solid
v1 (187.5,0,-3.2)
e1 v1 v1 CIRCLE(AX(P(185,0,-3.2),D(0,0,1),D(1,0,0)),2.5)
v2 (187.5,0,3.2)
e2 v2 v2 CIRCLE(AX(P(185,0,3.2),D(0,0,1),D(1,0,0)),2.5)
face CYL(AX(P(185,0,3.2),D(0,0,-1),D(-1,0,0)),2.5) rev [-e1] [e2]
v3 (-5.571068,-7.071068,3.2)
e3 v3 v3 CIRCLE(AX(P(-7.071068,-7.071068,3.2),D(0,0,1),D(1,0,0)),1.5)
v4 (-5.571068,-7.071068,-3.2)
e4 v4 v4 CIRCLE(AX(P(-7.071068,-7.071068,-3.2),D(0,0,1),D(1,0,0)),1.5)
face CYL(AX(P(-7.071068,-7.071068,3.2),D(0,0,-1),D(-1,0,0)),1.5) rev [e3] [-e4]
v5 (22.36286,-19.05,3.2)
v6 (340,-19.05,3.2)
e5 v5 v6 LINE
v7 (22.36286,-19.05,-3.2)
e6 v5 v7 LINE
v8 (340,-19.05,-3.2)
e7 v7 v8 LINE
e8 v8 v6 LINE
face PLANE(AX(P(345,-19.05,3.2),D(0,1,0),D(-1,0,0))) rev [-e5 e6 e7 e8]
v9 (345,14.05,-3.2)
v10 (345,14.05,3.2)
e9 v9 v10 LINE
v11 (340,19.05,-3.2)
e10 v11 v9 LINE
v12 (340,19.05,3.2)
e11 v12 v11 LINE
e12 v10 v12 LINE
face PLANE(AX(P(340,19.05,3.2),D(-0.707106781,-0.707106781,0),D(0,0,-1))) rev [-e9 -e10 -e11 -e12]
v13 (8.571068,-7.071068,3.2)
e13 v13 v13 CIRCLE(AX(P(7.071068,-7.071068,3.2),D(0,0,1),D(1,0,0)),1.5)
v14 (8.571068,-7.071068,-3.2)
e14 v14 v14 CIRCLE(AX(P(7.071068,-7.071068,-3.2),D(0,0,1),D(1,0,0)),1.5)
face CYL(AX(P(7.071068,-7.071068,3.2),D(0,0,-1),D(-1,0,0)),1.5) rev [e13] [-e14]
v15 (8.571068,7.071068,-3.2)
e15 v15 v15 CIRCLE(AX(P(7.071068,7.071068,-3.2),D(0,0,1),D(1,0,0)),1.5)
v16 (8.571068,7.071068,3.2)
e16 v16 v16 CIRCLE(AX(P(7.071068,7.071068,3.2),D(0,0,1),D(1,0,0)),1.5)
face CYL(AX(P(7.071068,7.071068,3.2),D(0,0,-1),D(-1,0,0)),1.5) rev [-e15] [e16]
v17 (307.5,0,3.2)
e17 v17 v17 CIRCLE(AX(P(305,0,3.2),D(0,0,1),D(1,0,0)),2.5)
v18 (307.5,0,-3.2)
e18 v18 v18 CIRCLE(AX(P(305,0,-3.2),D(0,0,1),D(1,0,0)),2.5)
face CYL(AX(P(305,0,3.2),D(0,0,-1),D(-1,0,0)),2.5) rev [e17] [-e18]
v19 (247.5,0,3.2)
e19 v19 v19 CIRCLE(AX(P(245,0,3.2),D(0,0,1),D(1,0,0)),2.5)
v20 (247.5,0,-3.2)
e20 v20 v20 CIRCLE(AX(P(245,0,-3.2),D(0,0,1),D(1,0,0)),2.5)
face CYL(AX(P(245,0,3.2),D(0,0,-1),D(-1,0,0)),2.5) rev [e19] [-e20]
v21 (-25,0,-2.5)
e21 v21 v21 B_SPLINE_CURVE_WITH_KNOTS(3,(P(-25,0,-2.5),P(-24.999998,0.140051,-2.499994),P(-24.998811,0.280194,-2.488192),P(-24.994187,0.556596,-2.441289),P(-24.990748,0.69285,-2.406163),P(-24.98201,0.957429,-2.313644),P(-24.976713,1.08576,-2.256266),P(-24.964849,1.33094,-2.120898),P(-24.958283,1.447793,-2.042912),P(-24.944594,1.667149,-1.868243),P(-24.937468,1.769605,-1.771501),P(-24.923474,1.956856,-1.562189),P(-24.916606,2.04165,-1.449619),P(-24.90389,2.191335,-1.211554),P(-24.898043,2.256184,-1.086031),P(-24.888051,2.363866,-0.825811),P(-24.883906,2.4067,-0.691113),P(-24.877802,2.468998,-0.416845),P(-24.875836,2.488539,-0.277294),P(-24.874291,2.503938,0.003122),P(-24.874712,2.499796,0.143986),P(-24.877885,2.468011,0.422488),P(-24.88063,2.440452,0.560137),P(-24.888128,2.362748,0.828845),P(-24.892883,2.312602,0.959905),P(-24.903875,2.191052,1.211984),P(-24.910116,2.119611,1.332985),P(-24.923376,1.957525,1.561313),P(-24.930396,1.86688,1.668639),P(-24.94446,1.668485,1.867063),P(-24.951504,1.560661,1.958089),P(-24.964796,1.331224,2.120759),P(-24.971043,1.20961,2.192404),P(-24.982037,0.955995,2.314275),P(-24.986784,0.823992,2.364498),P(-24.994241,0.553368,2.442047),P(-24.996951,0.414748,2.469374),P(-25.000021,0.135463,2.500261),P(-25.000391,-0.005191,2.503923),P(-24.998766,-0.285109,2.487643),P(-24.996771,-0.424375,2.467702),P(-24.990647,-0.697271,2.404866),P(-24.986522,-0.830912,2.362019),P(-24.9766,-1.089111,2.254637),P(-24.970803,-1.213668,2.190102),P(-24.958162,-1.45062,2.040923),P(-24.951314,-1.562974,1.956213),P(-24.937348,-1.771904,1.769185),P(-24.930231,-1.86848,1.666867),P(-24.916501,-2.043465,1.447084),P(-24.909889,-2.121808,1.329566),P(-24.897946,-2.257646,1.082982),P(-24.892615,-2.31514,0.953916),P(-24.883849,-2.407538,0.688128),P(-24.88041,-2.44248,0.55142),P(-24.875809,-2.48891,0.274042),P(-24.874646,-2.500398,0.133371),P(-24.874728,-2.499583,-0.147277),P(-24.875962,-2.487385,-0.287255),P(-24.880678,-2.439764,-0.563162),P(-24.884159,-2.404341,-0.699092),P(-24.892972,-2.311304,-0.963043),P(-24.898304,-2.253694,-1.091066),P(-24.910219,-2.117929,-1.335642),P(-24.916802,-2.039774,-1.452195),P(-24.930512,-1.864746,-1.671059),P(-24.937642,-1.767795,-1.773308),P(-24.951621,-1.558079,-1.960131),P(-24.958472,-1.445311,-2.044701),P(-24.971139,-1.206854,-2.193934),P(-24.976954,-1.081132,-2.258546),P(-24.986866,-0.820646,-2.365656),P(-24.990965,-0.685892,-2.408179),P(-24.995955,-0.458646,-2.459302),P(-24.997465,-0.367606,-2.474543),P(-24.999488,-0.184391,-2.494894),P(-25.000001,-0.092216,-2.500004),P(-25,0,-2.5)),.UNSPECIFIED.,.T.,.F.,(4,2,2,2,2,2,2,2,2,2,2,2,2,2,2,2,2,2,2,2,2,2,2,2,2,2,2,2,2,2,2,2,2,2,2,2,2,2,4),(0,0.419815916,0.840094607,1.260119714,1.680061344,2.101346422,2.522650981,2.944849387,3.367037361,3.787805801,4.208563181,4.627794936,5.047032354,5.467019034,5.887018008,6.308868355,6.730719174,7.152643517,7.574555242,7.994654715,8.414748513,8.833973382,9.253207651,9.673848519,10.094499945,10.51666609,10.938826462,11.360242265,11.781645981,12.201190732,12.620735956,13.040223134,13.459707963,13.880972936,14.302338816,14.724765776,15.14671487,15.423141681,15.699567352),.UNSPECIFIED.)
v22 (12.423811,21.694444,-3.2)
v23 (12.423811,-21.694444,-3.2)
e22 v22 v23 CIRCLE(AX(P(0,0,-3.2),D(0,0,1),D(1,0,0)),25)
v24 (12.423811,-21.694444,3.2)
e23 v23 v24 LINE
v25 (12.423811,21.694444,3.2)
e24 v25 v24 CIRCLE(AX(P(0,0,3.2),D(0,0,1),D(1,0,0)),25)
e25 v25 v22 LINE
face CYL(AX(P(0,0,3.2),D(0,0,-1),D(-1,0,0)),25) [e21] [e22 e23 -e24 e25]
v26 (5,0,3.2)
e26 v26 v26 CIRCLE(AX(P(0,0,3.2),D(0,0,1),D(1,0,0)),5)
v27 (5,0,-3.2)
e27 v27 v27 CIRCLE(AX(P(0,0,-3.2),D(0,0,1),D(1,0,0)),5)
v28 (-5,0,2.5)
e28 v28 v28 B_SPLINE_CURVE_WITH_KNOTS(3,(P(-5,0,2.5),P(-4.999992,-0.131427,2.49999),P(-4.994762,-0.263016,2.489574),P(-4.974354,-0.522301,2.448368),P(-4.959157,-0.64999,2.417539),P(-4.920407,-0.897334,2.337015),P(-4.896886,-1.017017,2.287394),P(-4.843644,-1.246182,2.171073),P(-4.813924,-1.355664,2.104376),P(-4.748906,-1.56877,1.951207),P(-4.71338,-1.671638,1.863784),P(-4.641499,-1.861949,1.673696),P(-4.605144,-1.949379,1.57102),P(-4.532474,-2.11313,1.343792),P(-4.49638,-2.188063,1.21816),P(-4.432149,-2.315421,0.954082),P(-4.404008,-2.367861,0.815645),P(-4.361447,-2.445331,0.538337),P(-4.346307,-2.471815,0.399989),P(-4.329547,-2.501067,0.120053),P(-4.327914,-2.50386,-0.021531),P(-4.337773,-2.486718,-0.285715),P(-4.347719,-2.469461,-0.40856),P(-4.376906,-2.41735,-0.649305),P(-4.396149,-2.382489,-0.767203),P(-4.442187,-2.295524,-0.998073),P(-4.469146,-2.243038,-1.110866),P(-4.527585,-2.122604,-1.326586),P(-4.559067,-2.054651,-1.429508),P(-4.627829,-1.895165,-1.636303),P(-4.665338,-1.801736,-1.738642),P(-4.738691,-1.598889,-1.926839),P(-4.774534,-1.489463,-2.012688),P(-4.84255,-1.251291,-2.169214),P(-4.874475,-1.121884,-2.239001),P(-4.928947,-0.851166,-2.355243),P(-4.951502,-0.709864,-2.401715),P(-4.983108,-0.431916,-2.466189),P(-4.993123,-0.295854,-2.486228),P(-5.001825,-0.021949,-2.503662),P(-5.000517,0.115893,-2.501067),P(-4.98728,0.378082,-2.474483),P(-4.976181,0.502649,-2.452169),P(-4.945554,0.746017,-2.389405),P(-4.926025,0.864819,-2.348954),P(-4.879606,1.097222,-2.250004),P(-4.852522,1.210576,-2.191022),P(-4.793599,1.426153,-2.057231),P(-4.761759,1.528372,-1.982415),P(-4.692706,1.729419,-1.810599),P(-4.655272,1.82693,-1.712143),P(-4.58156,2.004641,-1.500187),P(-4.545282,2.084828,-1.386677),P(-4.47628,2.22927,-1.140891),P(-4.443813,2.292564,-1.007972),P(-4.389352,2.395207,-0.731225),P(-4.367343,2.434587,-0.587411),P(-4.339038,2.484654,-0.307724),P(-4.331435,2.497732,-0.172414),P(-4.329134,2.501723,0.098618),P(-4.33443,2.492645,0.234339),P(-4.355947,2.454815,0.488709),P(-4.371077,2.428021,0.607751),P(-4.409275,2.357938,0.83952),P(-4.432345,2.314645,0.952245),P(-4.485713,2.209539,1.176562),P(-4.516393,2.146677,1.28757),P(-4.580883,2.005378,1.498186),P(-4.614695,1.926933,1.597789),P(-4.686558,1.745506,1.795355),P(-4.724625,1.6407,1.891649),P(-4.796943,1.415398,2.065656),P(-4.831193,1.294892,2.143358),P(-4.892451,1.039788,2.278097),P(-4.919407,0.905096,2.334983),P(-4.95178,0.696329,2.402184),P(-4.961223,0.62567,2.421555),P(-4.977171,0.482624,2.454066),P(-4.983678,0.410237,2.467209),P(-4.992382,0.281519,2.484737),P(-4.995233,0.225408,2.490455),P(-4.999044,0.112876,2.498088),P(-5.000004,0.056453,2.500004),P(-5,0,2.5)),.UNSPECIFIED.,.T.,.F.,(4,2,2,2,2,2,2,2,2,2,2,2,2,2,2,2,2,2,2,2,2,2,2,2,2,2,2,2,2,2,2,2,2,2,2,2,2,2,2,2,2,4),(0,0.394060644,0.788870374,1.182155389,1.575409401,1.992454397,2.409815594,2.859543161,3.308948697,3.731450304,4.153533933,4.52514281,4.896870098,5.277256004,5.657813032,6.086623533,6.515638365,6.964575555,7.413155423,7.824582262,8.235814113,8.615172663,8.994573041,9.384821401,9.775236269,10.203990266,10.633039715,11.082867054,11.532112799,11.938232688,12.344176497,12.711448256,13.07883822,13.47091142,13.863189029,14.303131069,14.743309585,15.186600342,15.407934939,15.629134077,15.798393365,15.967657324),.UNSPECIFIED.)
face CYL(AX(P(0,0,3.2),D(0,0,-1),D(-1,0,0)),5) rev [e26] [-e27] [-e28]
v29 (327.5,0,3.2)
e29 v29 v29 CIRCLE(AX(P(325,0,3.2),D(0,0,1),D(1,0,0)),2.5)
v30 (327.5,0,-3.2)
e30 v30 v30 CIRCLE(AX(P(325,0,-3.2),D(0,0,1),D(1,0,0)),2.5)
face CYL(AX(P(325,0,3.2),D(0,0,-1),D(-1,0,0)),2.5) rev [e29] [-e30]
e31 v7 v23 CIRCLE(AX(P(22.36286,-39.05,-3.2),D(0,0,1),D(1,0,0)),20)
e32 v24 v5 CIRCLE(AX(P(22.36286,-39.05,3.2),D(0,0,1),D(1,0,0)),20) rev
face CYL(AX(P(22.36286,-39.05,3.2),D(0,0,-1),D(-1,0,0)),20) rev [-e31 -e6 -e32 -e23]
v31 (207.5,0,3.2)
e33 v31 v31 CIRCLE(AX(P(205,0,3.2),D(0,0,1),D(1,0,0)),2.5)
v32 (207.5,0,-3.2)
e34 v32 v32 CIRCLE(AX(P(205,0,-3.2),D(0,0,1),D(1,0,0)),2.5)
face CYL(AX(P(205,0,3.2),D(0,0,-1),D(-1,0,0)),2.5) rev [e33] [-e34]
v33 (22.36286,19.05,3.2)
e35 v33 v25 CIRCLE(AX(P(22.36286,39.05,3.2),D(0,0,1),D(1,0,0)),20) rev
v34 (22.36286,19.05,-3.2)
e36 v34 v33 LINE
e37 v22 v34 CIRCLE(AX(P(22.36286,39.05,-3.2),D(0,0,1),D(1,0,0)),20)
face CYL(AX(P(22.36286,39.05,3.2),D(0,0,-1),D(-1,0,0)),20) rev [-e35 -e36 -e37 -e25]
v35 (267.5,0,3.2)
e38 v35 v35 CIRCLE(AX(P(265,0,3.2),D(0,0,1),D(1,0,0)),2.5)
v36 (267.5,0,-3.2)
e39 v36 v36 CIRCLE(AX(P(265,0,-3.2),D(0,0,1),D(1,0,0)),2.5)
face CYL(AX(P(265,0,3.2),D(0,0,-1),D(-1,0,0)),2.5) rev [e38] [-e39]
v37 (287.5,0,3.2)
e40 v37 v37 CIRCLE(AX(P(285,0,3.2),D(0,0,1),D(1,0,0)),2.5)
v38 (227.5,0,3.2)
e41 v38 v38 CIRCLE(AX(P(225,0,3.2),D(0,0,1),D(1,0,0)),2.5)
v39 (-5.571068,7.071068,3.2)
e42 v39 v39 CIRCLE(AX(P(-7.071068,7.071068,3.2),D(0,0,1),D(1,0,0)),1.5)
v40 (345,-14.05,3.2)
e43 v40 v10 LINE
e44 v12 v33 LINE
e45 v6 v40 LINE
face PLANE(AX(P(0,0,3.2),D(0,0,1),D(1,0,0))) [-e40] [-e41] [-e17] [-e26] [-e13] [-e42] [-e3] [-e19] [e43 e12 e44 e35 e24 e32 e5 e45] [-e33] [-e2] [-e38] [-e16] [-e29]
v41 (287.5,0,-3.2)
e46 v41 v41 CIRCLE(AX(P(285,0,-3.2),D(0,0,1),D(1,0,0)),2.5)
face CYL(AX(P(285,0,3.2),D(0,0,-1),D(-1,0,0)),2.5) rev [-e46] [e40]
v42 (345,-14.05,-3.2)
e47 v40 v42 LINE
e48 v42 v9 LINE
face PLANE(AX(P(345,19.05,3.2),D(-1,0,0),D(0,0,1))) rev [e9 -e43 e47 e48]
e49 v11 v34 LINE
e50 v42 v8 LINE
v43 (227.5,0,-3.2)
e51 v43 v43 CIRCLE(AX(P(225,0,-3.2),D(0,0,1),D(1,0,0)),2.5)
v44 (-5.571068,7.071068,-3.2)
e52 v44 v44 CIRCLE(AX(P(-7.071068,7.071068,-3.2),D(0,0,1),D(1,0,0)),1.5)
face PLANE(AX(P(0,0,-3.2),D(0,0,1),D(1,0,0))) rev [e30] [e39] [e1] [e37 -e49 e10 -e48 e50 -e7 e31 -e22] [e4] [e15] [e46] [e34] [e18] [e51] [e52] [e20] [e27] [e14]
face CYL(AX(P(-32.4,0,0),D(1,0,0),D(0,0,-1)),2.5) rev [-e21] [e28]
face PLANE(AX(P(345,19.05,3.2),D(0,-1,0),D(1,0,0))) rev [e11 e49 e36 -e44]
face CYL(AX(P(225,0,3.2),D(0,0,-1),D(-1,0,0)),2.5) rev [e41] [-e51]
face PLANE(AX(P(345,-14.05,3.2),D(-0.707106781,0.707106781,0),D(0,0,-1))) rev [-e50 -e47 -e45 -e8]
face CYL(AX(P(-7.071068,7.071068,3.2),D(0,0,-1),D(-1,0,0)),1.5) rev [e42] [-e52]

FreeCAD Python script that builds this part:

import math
import FreeCAD as App
import Part
import Sketcher


def edges_at(feature, points):
    """Names of the edges that pass closest to the given points."""
    edges = feature.Shape.Edges
    near = lambda p: min(range(len(edges)), key=lambda i: edges[i].distToShape(Part.Vertex(*p))[0])
    return sorted({f"Edge{near(p) + 1}" for p in points})

doc = App.newDocument("Part")
body = doc.addObject("PartDesign::Body", "Body")

# Sketch on XY plane
sketch1 = body.newObject("Sketcher::SketchObject", "Sketch")
sketch1.AttachmentSupport = (doc.getObject("XY_Plane"), [""])
sketch1.MapMode = "FlatFace"
sketch1.addGeometry(Part.LineSegment(App.Vector(345, 19.1, 0), App.Vector(16.2, 19.1, 0)), False)
sketch1.addGeometry(Part.ArcOfCircle(Part.Circle(App.Vector(0, 0, 0), App.Vector(0, 0, 1), 25), math.radians(50), math.radians(310)), False)
sketch1.addGeometry(Part.LineSegment(App.Vector(16.2, -19.1, 0), App.Vector(345, -19.1, 0)), False)
sketch1.addGeometry(Part.LineSegment(App.Vector(345, -19.1, 0), App.Vector(345, 19.1, 0)), False)
sketch1.addGeometry(Part.Circle(App.Vector(-7.1, -7.1, 0), App.Vector(0, 0, 1), 1.5), False)
sketch1.addGeometry(Part.Circle(App.Vector(7.1, -7.1, 0), App.Vector(0, 0, 1), 1.5), False)
sketch1.addGeometry(Part.Circle(App.Vector(0, 0, 0), App.Vector(0, 0, 1), 5), False)
sketch1.addGeometry(Part.Circle(App.Vector(-7.1, 7.1, 0), App.Vector(0, 0, 1), 1.5), False)
sketch1.addGeometry(Part.Circle(App.Vector(7.1, 7.1, 0), App.Vector(0, 0, 1), 1.5), False)
sketch1.addGeometry(Part.Circle(App.Vector(185, 0, 0), App.Vector(0, 0, 1), 2.5), False)
sketch1.addGeometry(Part.Circle(App.Vector(205, 0, 0), App.Vector(0, 0, 1), 2.5), False)
sketch1.addGeometry(Part.Circle(App.Vector(225, 0, 0), App.Vector(0, 0, 1), 2.5), False)
sketch1.addGeometry(Part.Circle(App.Vector(245, 0, 0), App.Vector(0, 0, 1), 2.5), False)
sketch1.addGeometry(Part.Circle(App.Vector(265, 0, 0), App.Vector(0, 0, 1), 2.5), False)
sketch1.addGeometry(Part.Circle(App.Vector(285, 0, 0), App.Vector(0, 0, 1), 2.5), False)
sketch1.addGeometry(Part.Circle(App.Vector(305, 0, 0), App.Vector(0, 0, 1), 2.5), False)
sketch1.addGeometry(Part.Circle(App.Vector(325, 0, 0), App.Vector(0, 0, 1), 2.5), False)
sketch1.addConstraint(Sketcher.Constraint("Coincident", 0, 2, 1, 1))
sketch1.addConstraint(Sketcher.Constraint("Coincident", 1, 2, 2, 1))
sketch1.addConstraint(Sketcher.Constraint("Coincident", 2, 2, 3, 1))
sketch1.addConstraint(Sketcher.Constraint("Coincident", 3, 2, 0, 1))
sketch1.addConstraint(Sketcher.Constraint("Horizontal", 0))
sketch1.addConstraint(Sketcher.Constraint("Horizontal", 2))
sketch1.addConstraint(Sketcher.Constraint("Vertical", 3))
sketch1.addConstraint(Sketcher.Constraint("Coincident", 1, 3, -1, 1))
sketch1.addConstraint(Sketcher.Constraint("Coincident", 6, 3, -1, 1))
sketch1.addConstraint(Sketcher.Constraint("Equal", 4, 5))
sketch1.addConstraint(Sketcher.Constraint("Equal", 5, 7))
sketch1.addConstraint(Sketcher.Constraint("Equal", 7, 8))
sketch1.addConstraint(Sketcher.Constraint("Equal", 9, 10))
sketch1.addConstraint(Sketcher.Constraint("Equal", 10, 11))
sketch1.addConstraint(Sketcher.Constraint("Equal", 11, 12))
sketch1.addConstraint(Sketcher.Constraint("Equal", 12, 13))
sketch1.addConstraint(Sketcher.Constraint("Equal", 13, 14))
sketch1.addConstraint(Sketcher.Constraint("Equal", 14, 15))
sketch1.addConstraint(Sketcher.Constraint("Equal", 15, 16))
sketch1.addConstraint(Sketcher.Constraint("Symmetric", 5, 3, 7, 3, -1, 1))
sketch1.addConstraint(Sketcher.Constraint("Symmetric", 4, 3, 8, 3, -1, 1))
sketch1.addConstraint(Sketcher.Constraint("Symmetric", 4, 3, 5, 3, -2))
sketch1.addConstraint(Sketcher.Constraint("PointOnObject", 9, 3, -1))
sketch1.addConstraint(Sketcher.Constraint("PointOnObject", 10, 3, -1))
sketch1.addConstraint(Sketcher.Constraint("PointOnObject", 11, 3, -1))
sketch1.addConstraint(Sketcher.Constraint("PointOnObject", 12, 3, -1))
sketch1.addConstraint(Sketcher.Constraint("PointOnObject", 13, 3, -1))
sketch1.addConstraint(Sketcher.Constraint("PointOnObject", 14, 3, -1))
sketch1.addConstraint(Sketcher.Constraint("PointOnObject", 15, 3, -1))
sketch1.addConstraint(Sketcher.Constraint("PointOnObject", 16, 3, -1))
sketch1.addConstraint(Sketcher.Constraint("Vertical", 0, 2, 1, 2))
sketch1.addConstraint(Sketcher.Constraint("Diameter", 4, 3.0))
sketch1.addConstraint(Sketcher.Constraint("Diameter", 6, 10.0))
sketch1.addConstraint(Sketcher.Constraint("Diameter", 9, 5.0))
sketch1.addConstraint(Sketcher.Constraint("Radius", 1, 25.0))
sketch1.addConstraint(Sketcher.Constraint("DistanceY", 3, 1, 3, 2, 38.1))
sketch1.addConstraint(Sketcher.Constraint("DistanceX", -1, 1, 9, 3, 185.0))
sketch1.addConstraint(Sketcher.Constraint("DistanceX", -1, 1, 10, 3, 205.0))
sketch1.addConstraint(Sketcher.Constraint("DistanceX", -1, 1, 11, 3, 225.0))
sketch1.addConstraint(Sketcher.Constraint("DistanceX", -1, 1, 12, 3, 245.0))
sketch1.addConstraint(Sketcher.Constraint("DistanceX", -1, 1, 13, 3, 265.0))
sketch1.addConstraint(Sketcher.Constraint("DistanceX", -1, 1, 14, 3, 285.0))
sketch1.addConstraint(Sketcher.Constraint("DistanceX", -1, 1, 15, 3, 305.0))
sketch1.addConstraint(Sketcher.Constraint("DistanceX", -1, 1, 16, 3, 325.0))
sketch1.addConstraint(Sketcher.Constraint("DistanceX", -1, 1, 2, 2, 345.0))
sketch1.addConstraint(Sketcher.Constraint("DistanceX", 4, 3, -1, 1, 7.071068))
sketch1.addConstraint(Sketcher.Constraint("DistanceY", 4, 3, -1, 1, 7.071068))
pad1 = body.newObject("PartDesign::Pad", "Pad")
pad1.Profile = sketch1
pad1.Length = 6.4
pad1.Midplane = True

# Sketch on YZ plane
sketch2 = body.newObject("Sketcher::SketchObject", "Sketch001")
sketch2.AttachmentSupport = (doc.getObject("YZ_Plane"), [""])
sketch2.MapMode = "FlatFace"
sketch2.addGeometry(Part.Circle(App.Vector(0, 0, 0), App.Vector(0, 0, 1), 2.5), False)
sketch2.addConstraint(Sketcher.Constraint("Coincident", 0, 3, -1, 1))
sketch2.addConstraint(Sketcher.Constraint("Diameter", 0, 5.0))
pocket1 = body.newObject("PartDesign::Pocket", "Pocket")
pocket1.Profile = sketch2
pocket1.Length = 32.4
doc.recompute()

fillet = body.newObject("PartDesign::Fillet", "Fillet")
fillet.Base = (pocket1, edges_at(pocket1, [(16.189, -19.05, 0), (16.189, 19.05, 0)]))
fillet.Radius = 20
doc.recompute()

chamfer = body.newObject("PartDesign::Chamfer", "Chamfer")
chamfer.Base = (fillet, edges_at(fillet, [(345, -19.05, 0), (345, 19.05, 0)]))
chamfer.Size = 5

doc.recompute()
